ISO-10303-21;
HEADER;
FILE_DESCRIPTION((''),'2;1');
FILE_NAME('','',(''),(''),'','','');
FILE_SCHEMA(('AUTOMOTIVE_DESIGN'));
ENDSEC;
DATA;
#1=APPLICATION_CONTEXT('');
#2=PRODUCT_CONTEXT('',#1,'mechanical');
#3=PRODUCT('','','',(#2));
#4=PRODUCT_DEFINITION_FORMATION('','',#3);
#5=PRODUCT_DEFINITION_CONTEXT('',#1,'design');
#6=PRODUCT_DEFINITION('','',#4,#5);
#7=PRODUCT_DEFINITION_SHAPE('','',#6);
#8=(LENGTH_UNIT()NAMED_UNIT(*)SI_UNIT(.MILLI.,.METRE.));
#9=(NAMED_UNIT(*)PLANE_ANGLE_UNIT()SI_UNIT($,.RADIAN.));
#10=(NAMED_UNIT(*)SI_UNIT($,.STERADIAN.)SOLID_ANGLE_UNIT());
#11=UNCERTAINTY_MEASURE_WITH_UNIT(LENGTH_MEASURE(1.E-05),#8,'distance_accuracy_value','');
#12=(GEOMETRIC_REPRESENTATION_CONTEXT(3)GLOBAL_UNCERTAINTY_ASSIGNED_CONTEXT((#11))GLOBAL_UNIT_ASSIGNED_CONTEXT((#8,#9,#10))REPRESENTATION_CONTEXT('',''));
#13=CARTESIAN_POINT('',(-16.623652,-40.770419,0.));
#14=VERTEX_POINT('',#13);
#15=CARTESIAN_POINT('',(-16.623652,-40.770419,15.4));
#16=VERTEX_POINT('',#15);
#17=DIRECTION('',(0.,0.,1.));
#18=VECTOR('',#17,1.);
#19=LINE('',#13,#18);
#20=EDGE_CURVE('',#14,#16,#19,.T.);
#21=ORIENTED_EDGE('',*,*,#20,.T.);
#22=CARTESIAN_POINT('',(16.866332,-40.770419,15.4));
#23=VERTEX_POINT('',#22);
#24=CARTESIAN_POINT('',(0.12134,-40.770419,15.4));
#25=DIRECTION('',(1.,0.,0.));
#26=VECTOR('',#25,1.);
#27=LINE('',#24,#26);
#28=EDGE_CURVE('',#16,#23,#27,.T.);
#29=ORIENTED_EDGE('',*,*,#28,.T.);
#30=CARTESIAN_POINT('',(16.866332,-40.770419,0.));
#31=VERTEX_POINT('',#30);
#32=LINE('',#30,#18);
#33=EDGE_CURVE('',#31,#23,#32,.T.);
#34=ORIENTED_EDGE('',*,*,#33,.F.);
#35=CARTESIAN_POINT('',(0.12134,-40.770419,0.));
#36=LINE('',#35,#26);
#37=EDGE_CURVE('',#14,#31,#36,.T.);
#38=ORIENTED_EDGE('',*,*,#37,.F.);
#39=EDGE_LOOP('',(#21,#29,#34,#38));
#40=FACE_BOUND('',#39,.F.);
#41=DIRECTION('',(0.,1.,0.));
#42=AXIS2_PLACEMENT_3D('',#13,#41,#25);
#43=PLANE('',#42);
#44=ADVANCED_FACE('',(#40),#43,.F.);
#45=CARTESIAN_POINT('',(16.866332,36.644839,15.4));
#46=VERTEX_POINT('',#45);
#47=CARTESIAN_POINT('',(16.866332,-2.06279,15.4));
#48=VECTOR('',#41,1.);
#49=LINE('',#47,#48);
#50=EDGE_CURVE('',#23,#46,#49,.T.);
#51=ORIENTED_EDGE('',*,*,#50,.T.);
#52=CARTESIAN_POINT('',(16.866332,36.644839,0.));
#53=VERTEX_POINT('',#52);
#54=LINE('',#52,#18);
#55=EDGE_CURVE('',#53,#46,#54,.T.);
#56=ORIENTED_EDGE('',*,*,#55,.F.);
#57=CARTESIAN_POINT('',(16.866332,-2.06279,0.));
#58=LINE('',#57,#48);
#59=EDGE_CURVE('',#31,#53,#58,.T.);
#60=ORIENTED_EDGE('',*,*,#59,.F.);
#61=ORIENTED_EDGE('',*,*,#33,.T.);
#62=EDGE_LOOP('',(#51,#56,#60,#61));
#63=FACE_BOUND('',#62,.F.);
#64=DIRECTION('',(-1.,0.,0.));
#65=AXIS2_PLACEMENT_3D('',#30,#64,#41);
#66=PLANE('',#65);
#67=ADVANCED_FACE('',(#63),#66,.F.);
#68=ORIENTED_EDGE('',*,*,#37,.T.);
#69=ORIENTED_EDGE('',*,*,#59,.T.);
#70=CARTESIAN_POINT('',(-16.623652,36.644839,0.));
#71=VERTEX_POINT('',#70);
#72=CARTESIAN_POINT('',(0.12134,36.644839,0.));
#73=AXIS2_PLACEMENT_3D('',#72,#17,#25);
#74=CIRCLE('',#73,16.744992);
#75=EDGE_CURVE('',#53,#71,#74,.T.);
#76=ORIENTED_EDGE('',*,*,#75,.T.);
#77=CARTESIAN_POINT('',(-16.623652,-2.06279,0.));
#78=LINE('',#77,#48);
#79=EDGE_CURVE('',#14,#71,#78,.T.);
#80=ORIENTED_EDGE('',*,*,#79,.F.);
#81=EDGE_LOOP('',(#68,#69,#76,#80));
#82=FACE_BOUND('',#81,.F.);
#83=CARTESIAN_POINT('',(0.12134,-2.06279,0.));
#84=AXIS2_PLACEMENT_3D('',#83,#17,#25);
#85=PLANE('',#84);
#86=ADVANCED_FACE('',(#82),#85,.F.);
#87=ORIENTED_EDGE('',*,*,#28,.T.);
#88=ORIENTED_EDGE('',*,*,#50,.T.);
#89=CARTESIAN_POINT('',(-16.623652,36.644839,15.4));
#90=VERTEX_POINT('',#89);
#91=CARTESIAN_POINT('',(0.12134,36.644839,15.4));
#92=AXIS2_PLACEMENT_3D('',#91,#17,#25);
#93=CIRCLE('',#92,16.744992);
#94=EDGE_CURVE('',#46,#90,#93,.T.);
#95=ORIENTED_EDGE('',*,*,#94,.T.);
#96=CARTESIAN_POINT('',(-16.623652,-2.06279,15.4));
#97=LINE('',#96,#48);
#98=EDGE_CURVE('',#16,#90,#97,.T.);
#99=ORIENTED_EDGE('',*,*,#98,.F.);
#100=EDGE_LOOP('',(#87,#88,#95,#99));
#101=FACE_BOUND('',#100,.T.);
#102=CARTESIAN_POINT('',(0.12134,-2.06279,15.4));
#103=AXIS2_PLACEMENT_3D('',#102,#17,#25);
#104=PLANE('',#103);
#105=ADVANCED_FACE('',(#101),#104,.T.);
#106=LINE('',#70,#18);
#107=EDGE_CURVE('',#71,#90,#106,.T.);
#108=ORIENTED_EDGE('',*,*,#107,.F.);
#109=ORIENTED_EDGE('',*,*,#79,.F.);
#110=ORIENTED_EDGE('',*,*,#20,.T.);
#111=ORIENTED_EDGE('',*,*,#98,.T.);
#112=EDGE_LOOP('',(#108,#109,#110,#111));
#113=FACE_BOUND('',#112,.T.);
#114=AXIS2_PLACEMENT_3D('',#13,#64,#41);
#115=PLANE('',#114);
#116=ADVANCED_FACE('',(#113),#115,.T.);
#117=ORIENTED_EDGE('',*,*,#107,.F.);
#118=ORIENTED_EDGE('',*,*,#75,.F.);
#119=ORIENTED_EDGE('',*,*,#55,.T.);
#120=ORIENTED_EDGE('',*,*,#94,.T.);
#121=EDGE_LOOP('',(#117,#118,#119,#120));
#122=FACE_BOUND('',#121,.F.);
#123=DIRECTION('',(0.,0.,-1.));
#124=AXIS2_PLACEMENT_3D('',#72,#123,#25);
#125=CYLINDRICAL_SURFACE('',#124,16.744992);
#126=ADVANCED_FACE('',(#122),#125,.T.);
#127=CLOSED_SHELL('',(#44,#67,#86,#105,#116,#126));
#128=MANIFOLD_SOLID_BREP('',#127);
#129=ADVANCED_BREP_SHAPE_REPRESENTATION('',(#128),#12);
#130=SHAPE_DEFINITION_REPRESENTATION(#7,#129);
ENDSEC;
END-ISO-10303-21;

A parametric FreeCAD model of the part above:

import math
import FreeCAD as App
import Part
import Sketcher

V = App.Vector

doc = App.newDocument("Part")
body = doc.addObject("PartDesign::Body", "Body")

sketch1 = doc.addObject("Sketcher::SketchObject", "Sketch")
body.addObject(sketch1)
sketch1.AttachmentSupport = (doc.XY_Plane, [""])
sketch1.MapMode = "FlatFace"
sketch1.addGeometry([
    Part.LineSegment(V(-17, 37, 0), V(-17, -41, 0)),
    Part.LineSegment(V(-17, -41, 0), V(17, -41, 0)),
    Part.LineSegment(V(17, -41, 0), V(17, 37, 0)),
    Part.ArcOfCircle(Part.Circle(V(0, 37, 0), V(0, 0, 1), 17), math.radians(0), math.radians(180)),
], False)
sketch1.addConstraint([
    Sketcher.Constraint("Coincident", 0, 2, 1, 1),
    Sketcher.Constraint("Coincident", 1, 2, 2, 1),
    Sketcher.Constraint("Tangent", 2, 2, 3, 1),
    Sketcher.Constraint("Tangent", 3, 2, 0, 1),
    Sketcher.Constraint("Vertical", 0),
    Sketcher.Constraint("Horizontal", 1),
    Sketcher.Constraint("Vertical", 2),
    Sketcher.Constraint("Radius", 3, 16.744992),
    Sketcher.Constraint("DistanceY", 0, 2, 0, 1, 77.415258),
    Sketcher.Constraint("DistanceX", -1, 1, 3, 3, 0.12134),
    Sketcher.Constraint("DistanceY", -1, 1, 3, 3, 36.644839),
])
pad1 = doc.addObject("PartDesign::Pad", "Pad")
body.addObject(pad1)
pad1.Profile = sketch1
pad1.Length = 15.4

doc.recompute()
